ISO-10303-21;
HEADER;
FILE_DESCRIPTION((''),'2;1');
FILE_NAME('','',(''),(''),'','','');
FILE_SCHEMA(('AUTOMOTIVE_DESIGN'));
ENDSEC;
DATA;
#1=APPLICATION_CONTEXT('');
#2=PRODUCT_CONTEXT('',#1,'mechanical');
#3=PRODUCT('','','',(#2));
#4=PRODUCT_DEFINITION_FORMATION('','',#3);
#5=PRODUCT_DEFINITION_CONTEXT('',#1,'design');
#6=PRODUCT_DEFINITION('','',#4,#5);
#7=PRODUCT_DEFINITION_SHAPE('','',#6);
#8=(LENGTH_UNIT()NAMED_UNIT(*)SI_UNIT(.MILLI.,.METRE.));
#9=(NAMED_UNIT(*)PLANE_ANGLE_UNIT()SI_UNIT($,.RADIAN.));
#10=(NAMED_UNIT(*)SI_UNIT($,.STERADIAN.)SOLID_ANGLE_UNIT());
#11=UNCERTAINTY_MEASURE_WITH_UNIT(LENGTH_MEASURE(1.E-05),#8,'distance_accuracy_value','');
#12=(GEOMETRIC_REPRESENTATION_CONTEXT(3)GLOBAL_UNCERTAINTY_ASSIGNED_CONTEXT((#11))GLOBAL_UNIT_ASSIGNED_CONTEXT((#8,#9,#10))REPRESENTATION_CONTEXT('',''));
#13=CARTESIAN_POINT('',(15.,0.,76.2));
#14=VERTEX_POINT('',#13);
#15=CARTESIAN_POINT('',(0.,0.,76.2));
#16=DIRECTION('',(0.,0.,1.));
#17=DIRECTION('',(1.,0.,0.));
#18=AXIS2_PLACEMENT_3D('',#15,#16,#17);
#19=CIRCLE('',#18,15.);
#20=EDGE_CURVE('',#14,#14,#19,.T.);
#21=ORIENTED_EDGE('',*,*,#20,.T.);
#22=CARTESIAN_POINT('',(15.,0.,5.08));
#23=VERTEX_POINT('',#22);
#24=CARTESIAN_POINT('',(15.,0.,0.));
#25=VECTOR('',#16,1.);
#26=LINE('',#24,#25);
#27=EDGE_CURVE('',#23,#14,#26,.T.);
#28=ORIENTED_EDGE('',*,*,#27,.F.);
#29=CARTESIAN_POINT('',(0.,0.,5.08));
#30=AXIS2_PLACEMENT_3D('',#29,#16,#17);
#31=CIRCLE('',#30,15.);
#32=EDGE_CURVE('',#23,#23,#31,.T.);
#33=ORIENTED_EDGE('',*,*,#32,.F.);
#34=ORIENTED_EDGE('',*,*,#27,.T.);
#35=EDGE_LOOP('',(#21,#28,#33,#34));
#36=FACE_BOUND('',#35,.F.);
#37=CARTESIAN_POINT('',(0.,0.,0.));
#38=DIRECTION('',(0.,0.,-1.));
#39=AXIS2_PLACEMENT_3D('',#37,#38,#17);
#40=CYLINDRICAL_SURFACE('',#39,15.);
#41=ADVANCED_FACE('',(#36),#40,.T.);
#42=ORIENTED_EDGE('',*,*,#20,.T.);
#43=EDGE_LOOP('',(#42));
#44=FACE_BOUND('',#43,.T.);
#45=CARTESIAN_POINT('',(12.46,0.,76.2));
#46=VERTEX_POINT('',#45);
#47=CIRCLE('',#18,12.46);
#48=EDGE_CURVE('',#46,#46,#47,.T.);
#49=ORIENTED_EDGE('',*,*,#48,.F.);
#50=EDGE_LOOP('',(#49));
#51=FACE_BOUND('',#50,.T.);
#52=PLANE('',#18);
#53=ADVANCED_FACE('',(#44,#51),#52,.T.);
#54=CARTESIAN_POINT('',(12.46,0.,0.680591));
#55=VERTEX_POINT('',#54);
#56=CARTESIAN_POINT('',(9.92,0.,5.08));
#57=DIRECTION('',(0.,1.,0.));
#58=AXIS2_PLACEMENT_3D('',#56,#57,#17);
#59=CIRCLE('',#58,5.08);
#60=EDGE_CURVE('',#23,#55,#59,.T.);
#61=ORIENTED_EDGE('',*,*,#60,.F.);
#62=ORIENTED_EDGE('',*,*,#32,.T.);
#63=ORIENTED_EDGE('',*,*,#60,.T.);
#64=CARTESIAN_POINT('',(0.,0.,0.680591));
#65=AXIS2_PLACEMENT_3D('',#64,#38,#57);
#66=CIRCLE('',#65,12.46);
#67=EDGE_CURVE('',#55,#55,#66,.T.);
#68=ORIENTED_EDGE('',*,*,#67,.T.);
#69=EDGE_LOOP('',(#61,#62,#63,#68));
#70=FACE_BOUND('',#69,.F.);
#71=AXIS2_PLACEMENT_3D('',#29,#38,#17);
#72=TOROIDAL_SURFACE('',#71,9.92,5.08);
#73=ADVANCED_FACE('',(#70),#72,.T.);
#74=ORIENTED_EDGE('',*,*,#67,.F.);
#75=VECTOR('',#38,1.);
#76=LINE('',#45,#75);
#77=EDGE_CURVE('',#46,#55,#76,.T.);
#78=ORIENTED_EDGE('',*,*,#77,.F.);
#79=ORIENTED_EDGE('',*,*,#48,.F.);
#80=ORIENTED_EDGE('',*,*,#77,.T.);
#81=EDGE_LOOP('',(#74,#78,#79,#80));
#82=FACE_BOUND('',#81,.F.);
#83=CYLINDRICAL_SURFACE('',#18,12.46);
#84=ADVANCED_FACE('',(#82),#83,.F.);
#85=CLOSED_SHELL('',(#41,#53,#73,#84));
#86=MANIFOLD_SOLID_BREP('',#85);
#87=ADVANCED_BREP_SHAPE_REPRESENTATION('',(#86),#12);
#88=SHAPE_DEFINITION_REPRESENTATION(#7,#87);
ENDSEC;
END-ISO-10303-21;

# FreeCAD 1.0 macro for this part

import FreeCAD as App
import Part
import Sketcher

V = App.Vector
Q = App.Units.Quantity


def edges_at(feature, points):
    """Names of the edges that pass closest to the given points."""
    edges = feature.Shape.Edges
    near = lambda p: min(range(len(edges)), key=lambda i: edges[i].distToShape(Part.Vertex(*p))[0])
    return sorted({f"Edge{near(p) + 1}" for p in points})

doc = App.newDocument("Part")
body = doc.addObject("PartDesign::Body", "Body")

# Sketch on XY plane
sketch1 = doc.addObject("Sketcher::SketchObject", "Sketch")
body.addObject(sketch1)
sketch1.AttachmentSupport = (doc.XY_Plane, [""])
sketch1.MapMode = "FlatFace"
sketch1.addGeometry(Part.Circle(V(0, 0, 0), V(0, 0, 1), 15), False)
sketch1.addConstraint([
    Sketcher.Constraint("Coincident", 0, 3, -1, 1),
    Sketcher.Constraint("Diameter", 0, 30.0),
])
pad1 = doc.addObject("PartDesign::Pad", "Pad")
body.addObject(pad1)
pad1.Profile = sketch1
pad1.Length = Q("3 in")
doc.recompute()

fillet = doc.addObject("PartDesign::Fillet", "Fillet")
body.addObject(fillet)
fillet.Base = (pad1, edges_at(pad1, [(-15, 0, 0)]))
fillet.Radius = Q("0.2 in")

# Sketch on XY plane
sketch2 = doc.addObject("Sketcher::SketchObject", "Sketch001")
body.addObject(sketch2)
sketch2.AttachmentSupport = (doc.XY_Plane, [""])
sketch2.MapMode = "FlatFace"
sketch2.AttachmentOffset = App.Placement(V(0, 0, 3 * 25.4), App.Rotation())
sketch2.addGeometry(Part.Circle(V(0, 0, 0), V(0, 0, 1), 12), False)
sketch2.addConstraint([
    Sketcher.Constraint("Coincident", 0, 3, -1, 1),
    Sketcher.Constraint("Diameter", 0, 24.92),
])
pocket1 = doc.addObject("PartDesign::Pocket", "Pocket")
body.addObject(pocket1)
pocket1.Profile = sketch2
pocket1.Type = "ThroughAll"

doc.recompute()
